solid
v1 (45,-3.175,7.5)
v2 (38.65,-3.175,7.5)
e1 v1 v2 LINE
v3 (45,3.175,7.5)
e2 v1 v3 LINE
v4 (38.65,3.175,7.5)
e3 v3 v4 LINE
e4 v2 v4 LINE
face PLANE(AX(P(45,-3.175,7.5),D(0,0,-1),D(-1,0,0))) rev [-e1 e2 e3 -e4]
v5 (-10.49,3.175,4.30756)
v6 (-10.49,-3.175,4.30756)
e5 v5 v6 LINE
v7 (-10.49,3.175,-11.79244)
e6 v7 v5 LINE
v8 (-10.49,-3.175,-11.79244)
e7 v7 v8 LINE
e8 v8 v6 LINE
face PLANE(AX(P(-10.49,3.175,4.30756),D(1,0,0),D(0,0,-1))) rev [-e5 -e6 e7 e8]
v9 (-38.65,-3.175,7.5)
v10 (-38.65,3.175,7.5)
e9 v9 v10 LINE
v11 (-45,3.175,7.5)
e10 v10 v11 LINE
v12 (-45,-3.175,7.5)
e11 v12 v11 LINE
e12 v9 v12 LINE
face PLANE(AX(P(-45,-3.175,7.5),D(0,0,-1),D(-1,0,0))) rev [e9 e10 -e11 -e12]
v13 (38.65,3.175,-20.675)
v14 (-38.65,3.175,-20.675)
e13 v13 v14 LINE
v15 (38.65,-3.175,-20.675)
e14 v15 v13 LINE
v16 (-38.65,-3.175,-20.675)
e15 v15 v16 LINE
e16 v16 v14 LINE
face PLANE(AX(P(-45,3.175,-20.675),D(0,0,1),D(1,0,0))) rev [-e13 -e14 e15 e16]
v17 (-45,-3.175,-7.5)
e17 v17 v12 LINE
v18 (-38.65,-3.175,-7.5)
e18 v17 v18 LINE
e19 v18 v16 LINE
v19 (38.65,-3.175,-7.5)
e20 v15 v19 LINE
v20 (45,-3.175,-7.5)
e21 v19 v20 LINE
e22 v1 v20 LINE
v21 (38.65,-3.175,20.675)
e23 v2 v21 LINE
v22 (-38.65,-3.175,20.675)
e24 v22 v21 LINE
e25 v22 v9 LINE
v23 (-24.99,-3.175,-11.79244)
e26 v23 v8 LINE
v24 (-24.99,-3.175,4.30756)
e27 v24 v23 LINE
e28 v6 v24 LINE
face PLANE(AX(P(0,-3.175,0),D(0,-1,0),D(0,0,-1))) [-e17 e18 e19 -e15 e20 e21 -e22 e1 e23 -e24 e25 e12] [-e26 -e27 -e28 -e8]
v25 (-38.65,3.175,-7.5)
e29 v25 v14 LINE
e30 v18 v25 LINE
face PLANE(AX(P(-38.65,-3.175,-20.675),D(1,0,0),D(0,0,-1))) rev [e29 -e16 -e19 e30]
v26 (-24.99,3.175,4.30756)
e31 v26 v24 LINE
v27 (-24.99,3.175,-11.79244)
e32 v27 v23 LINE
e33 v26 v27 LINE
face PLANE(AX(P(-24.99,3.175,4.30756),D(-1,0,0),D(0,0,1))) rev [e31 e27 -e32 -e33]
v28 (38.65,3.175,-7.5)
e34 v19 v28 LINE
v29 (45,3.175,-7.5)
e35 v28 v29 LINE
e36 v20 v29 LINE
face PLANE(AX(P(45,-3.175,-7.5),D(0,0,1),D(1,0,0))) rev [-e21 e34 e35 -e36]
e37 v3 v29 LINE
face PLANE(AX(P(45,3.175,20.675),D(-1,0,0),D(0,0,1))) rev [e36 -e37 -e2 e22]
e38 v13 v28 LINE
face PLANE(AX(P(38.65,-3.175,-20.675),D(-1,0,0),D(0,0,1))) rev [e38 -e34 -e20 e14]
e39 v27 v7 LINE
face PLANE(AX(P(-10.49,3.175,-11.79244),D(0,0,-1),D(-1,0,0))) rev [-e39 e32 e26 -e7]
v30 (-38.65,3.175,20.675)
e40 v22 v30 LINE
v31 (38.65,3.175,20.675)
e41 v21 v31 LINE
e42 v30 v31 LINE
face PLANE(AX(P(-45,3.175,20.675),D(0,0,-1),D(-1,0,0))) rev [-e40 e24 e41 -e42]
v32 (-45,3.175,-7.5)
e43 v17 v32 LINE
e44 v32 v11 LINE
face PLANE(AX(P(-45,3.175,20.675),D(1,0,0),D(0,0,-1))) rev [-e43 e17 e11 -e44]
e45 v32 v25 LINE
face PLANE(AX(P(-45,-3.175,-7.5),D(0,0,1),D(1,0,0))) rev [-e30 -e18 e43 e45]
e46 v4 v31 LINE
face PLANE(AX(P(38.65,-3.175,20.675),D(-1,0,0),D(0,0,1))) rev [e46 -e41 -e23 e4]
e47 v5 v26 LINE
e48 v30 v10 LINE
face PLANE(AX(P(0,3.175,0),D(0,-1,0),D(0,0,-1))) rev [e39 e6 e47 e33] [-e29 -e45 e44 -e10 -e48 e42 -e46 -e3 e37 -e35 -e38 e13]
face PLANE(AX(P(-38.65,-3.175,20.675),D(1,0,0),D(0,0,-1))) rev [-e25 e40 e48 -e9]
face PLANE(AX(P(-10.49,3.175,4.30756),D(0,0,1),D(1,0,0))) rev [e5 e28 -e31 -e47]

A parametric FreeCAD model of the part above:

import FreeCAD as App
import Part
import Sketcher
from FreeCAD import Vector


def add_polygon(sketch, points):
    """Adds a closed chain of lines whose ends are joined by coincident constraints."""
    first, n = sketch.GeometryCount, len(points)
    for a, b in zip(points, points[1:] + points[:1]):
        sketch.addGeometry(Part.LineSegment(App.Vector(*a, 0), App.Vector(*b, 0)), False)
    for i in range(n):
        sketch.addConstraint(Sketcher.Constraint("Coincident", first + i, 2, first + (i + 1) % n, 1))

doc = App.newDocument("Part")
body = doc.addObject("PartDesign::Body", "Body")

# Sketch on XZ plane
sketch1 = body.newObject("Sketcher::SketchObject", "Sketch")
sketch1.AttachmentSupport = (doc.getObject("XZ_Plane"), [""])
sketch1.MapMode = "FlatFace"
add_polygon(sketch1, [(-45, -20.675), (-45, 20.675), (45, 20.675), (45, -20.675)])  # lines 0-3
sketch1.addConstraint([
    Sketcher.Constraint("Vertical", 0),
    Sketcher.Constraint("Horizontal", 1),
    Sketcher.Constraint("Vertical", 2),
    Sketcher.Constraint("Horizontal", 3),
    Sketcher.Constraint("Symmetric", 0, 2, 2, 2, -1, 1),
    Sketcher.Constraint("DistanceX", 1, 1, 1, 2, 90.0),
    Sketcher.Constraint("DistanceY", 0, 1, 0, 2, 41.35),
])
pad1 = body.newObject("PartDesign::Pad", "Pad")
pad1.Profile = sketch1
pad1.Length = 6.35
pad1.Midplane = True

# Sketch on XZ plane
sketch2 = body.newObject("Sketcher::SketchObject", "Sketch001")
sketch2.AttachmentSupport = (doc.getObject("XZ_Plane"), [""])
sketch2.MapMode = "FlatFace"
sketch2.AttachmentOffset = App.Placement(Vector(0, 0, -3.175), App.Rotation())
add_polygon(sketch2, [(-45, 7.5), (-45, 20.675), (-38.65, 20.675), (-38.65, 7.5)])  # lines 0-3
add_polygon(sketch2, [(-45, -20.675), (-45, -7.5), (-38.65, -7.5), (-38.65, -20.675)])  # lines 4-7
add_polygon(sketch2, [(38.65, -20.675), (38.65, -7.5), (45, -7.5), (45, -20.675)])  # lines 8-11
add_polygon(sketch2, [(38.65, 7.5), (38.65, 20.675), (45, 20.675), (45, 7.5)])  # lines 12-15
sketch2.addConstraint([
    Sketcher.Constraint("Vertical", 0),
    Sketcher.Constraint("Horizontal", 1),
    Sketcher.Constraint("Vertical", 2),
    Sketcher.Constraint("Horizontal", 3),
    Sketcher.Constraint("Vertical", 4),
    Sketcher.Constraint("Horizontal", 5),
    Sketcher.Constraint("Vertical", 6),
    Sketcher.Constraint("Horizontal", 7),
    Sketcher.Constraint("Vertical", 8),
    Sketcher.Constraint("Horizontal", 9),
    Sketcher.Constraint("Vertical", 10),
    Sketcher.Constraint("Horizontal", 11),
    Sketcher.Constraint("Vertical", 12),
    Sketcher.Constraint("Horizontal", 13),
    Sketcher.Constraint("Vertical", 14),
    Sketcher.Constraint("Horizontal", 15),
    Sketcher.Constraint("Symmetric", 2, 2, 8, 2, -1, 1),
    Sketcher.Constraint("Symmetric", 0, 2, 10, 2, -1, 1),
    Sketcher.Constraint("Symmetric", 6, 2, 12, 2, -1, 1),
    Sketcher.Constraint("Symmetric", 4, 2, 14, 2, -1, 1),
    Sketcher.Constraint("Symmetric", 5, 2, 8, 2, -2),
    Sketcher.Constraint("Symmetric", 7, 2, 10, 2, -2),
    Sketcher.Constraint("DistanceX", 0, 2, -1, 1, 45.0),
    Sketcher.Constraint("DistanceY", 4, 2, 3, 2, 15.0),
    Sketcher.Constraint("DistanceX", 1, 1, 1, 2, 6.35),
    Sketcher.Constraint("DistanceY", 0, 1, 0, 2, 13.175),
])
pocket1 = body.newObject("PartDesign::Pocket", "Pocket")
pocket1.Profile = sketch2
pocket1.Type = "ThroughAll"
pocket1.Reversed = True

# Sketch on XZ plane
sketch3 = body.newObject("Sketcher::SketchObject", "Sketch002")
sketch3.AttachmentSupport = (doc.getObject("XZ_Plane"), [""])
sketch3.MapMode = "FlatFace"
sketch3.AttachmentOffset = App.Placement(Vector(0, 0, 3.175), App.Rotation())
add_polygon(sketch3, [(-24.99, 4.30756), (-24.99, -11.79244), (-10.49, -11.79244), (-10.49, 4.30756)])  # lines 0-3
sketch3.addConstraint([
    Sketcher.Constraint("Vertical", 0),
    Sketcher.Constraint("Horizontal", 1),
    Sketcher.Constraint("Vertical", 2),
    Sketcher.Constraint("Horizontal", 3),
    Sketcher.Constraint("DistanceX", 1, 1, 1, 2, 14.5),
    Sketcher.Constraint("DistanceY", 0, 2, 0, 1, 16.1),
    Sketcher.Constraint("DistanceX", 0, 2, -1, 1, 24.99),
    Sketcher.Constraint("DistanceY", 0, 2, -1, 1, 11.79244),
])
pocket2 = body.newObject("PartDesign::Pocket", "Pocket001")
pocket2.Profile = sketch3
pocket2.Type = "ThroughAll"

doc.recompute()
